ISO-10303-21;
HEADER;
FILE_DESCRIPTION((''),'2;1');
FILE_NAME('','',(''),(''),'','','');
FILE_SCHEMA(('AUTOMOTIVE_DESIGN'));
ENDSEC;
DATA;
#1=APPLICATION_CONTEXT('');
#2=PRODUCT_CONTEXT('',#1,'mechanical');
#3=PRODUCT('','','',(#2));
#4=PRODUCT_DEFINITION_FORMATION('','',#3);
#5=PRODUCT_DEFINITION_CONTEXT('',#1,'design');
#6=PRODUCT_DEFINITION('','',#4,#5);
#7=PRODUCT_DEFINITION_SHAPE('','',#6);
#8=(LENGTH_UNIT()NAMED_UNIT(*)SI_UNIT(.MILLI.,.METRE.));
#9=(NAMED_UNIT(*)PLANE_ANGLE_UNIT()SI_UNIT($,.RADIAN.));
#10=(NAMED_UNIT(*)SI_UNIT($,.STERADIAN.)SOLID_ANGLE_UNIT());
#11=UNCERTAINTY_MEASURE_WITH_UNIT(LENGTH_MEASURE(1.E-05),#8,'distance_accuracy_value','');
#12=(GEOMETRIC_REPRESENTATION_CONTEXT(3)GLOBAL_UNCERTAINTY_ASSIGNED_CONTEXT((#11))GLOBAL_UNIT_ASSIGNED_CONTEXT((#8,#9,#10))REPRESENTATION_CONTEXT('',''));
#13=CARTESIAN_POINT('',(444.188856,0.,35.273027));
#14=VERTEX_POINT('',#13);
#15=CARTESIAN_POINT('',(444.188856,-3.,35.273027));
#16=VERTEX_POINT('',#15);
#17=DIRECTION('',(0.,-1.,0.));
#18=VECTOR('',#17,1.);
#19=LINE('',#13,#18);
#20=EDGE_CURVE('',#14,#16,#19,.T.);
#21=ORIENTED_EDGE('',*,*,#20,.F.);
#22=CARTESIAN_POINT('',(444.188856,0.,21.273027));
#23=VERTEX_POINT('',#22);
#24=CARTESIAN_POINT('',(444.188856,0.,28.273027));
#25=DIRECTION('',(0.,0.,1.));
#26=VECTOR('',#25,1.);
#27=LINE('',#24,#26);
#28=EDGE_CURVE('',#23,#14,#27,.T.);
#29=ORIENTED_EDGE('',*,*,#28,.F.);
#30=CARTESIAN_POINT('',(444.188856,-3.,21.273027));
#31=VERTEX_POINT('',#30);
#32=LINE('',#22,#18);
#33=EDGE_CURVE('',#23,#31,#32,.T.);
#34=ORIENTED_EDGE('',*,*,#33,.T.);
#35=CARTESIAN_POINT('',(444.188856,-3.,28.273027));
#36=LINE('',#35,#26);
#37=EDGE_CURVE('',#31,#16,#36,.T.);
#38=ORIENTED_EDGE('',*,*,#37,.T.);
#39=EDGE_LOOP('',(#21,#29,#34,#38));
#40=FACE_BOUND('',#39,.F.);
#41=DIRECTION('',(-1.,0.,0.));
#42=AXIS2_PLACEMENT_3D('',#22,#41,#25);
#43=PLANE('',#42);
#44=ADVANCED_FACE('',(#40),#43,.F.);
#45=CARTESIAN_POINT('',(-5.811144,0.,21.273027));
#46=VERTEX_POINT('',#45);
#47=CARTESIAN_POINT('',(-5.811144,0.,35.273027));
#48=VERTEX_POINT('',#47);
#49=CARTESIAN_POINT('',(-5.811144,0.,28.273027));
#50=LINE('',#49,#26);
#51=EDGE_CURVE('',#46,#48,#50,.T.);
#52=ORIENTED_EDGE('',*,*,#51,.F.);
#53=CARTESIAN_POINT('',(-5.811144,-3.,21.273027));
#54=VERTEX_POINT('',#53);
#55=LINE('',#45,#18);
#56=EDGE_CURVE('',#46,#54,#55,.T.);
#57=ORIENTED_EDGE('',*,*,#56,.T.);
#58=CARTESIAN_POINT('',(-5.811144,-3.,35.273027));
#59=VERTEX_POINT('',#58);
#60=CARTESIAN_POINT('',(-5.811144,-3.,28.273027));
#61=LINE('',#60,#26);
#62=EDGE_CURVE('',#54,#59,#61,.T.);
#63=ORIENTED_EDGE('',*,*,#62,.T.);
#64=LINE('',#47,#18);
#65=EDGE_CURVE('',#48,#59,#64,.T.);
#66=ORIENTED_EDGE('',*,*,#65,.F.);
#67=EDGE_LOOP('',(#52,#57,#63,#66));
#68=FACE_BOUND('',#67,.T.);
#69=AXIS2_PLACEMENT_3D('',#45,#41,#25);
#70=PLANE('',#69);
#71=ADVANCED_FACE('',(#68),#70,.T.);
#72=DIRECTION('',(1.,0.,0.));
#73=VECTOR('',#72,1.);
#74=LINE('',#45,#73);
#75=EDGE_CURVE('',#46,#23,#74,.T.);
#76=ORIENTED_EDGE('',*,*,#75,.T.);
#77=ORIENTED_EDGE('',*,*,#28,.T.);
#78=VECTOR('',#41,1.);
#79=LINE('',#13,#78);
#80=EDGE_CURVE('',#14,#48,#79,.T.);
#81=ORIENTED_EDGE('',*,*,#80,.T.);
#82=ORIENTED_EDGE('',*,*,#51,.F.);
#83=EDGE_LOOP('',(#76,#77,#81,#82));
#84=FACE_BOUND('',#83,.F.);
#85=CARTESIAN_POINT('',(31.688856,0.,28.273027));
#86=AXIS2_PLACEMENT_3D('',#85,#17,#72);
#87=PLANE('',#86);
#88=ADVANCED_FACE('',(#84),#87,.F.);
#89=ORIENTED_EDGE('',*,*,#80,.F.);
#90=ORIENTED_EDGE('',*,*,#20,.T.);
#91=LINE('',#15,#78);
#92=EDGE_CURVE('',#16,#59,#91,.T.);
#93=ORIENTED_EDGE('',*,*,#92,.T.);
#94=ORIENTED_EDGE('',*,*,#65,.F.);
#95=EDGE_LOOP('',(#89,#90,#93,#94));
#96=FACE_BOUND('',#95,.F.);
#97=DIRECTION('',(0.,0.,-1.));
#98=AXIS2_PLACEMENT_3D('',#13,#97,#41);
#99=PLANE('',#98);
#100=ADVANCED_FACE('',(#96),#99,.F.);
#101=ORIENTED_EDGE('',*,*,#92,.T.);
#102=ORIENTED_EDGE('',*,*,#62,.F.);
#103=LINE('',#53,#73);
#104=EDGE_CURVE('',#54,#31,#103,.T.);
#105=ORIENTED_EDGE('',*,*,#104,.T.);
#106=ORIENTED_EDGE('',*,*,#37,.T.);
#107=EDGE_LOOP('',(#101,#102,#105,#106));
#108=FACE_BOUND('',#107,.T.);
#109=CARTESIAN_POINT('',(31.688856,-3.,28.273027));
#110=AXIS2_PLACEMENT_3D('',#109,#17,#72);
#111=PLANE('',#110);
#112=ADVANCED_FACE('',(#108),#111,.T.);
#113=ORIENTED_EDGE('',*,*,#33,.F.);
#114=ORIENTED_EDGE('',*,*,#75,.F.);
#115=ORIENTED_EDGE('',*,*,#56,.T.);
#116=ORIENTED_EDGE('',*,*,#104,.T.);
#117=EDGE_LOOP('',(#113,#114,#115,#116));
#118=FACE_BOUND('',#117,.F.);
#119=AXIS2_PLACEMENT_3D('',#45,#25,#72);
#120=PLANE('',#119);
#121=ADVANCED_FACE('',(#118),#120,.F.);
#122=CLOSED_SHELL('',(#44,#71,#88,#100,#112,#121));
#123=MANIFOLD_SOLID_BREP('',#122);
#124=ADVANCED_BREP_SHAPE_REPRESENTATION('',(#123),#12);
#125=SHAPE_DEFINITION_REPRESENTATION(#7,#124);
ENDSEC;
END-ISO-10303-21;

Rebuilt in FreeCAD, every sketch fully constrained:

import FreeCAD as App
import Part
import Sketcher
Q = App.Units.Quantity


def add_polygon(sketch, points):
    """Adds a closed chain of lines whose ends are joined by coincident constraints."""
    first, n = sketch.GeometryCount, len(points)
    for a, b in zip(points, points[1:] + points[:1]):
        sketch.addGeometry(Part.LineSegment(App.Vector(*a, 0), App.Vector(*b, 0)), False)
    for i in range(n):
        sketch.addConstraint(Sketcher.Constraint("Coincident", first + i, 2, first + (i + 1) % n, 1))

doc = App.newDocument("Part")
body = doc.addObject("PartDesign::Body", "Body")

sketch1 = body.newObject("Sketcher::SketchObject", "Sketch")
sketch1.AttachmentSupport = (doc.getObject("XZ_Plane"), [""])
sketch1.MapMode = "FlatFace"
add_polygon(sketch1, [(-5.811144, 35.273027), (-5.811144, 21.273027), (444.188856, 21.273027), (444.188856, 35.273027)])
sketch1.addConstraint(Sketcher.Constraint("Vertical", 0))
sketch1.addConstraint(Sketcher.Constraint("Horizontal", 1))
sketch1.addConstraint(Sketcher.Constraint("Vertical", 2))
sketch1.addConstraint(Sketcher.Constraint("Horizontal", 3))
sketch1.addConstraint(Sketcher.Constraint("DistanceX", 1, 1, 1, 2, Q("450 mm")))
sketch1.addConstraint(Sketcher.Constraint("DistanceY", 0, 2, 0, 1, Q("14 mm")))
sketch1.addConstraint(Sketcher.Constraint("DistanceX", 0, 2, -1, 1, Q("5.811144 mm")))
sketch1.addConstraint(Sketcher.Constraint("DistanceY", -1, 1, 0, 2, Q("21.273027 mm")))
pad1 = body.newObject("PartDesign::Pad", "Pad")
pad1.Profile = sketch1
pad1.Length = 3

doc.recompute()
